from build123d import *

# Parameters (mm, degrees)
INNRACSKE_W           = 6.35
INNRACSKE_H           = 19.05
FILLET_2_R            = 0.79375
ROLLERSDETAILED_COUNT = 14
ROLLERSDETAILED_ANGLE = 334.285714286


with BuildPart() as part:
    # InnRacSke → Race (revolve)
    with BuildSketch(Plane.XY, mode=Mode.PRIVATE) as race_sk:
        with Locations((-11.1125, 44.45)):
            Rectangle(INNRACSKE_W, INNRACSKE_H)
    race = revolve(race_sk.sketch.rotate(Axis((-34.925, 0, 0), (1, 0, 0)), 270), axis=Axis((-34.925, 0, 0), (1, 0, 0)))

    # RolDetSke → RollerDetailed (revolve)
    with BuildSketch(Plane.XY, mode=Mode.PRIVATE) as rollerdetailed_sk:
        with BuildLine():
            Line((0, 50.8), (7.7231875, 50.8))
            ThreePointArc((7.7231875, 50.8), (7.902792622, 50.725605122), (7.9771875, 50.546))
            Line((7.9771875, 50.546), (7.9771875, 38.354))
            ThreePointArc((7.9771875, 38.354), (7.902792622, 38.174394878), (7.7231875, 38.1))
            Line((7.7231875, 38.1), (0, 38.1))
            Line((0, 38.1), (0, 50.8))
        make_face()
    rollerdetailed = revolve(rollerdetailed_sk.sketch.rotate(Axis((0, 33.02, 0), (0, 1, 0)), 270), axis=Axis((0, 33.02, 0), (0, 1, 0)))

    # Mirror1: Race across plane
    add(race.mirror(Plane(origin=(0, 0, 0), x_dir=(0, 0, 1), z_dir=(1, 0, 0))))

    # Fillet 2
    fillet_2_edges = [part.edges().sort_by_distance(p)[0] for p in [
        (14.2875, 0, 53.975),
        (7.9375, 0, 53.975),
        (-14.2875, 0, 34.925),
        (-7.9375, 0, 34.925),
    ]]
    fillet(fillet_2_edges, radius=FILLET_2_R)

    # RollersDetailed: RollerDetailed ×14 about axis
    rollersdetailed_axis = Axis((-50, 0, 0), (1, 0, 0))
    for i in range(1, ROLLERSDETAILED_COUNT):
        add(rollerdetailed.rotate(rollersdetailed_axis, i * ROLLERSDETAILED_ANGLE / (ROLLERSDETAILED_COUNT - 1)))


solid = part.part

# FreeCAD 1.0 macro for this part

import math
import FreeCAD as App
import Part
import Sketcher
from FreeCAD import Vector
Q = App.Units.Quantity


def edges_at(feature, points):
    """Names of the edges that pass closest to the given points."""
    edges = feature.Shape.Edges
    near = lambda p: min(range(len(edges)), key=lambda i: edges[i].distToShape(Part.Vertex(*p))[0])
    return sorted({f"Edge{near(p) + 1}" for p in points})

doc = App.newDocument("Part")
body = doc.addObject("PartDesign::Body", "Body")

# Sketch on XY plane
sketch1 = body.newObject("Sketcher::SketchObject", "Sketch")
sketch1.AttachmentSupport = (doc.getObject("XY_Plane"), [""])
sketch1.MapMode = "FlatFace"
sketch1.addGeometry([
    Part.LineSegment(Vector(-14, 54, 0), Vector(-14, 35, 0)),
    Part.LineSegment(Vector(-14, 35, 0), Vector(-8, 35, 0)),
    Part.LineSegment(Vector(-8, 35, 0), Vector(-8, 54, 0)),
    Part.LineSegment(Vector(-8, 54, 0), Vector(-14, 54, 0)),
], False)
sketch1.addConstraint([
    Sketcher.Constraint("Coincident", 0, 2, 1, 1),
    Sketcher.Constraint("Coincident", 1, 2, 2, 1),
    Sketcher.Constraint("Coincident", 2, 2, 3, 1),
    Sketcher.Constraint("Coincident", 3, 2, 0, 1),
    Sketcher.Constraint("Vertical", 0),
    Sketcher.Constraint("Horizontal", 1),
    Sketcher.Constraint("Vertical", 2),
    Sketcher.Constraint("Horizontal", 3),
    Sketcher.Constraint("DistanceX", 1, 1, 1, 2, Q("0.25 in")),
    Sketcher.Constraint("DistanceY", 0, 2, 0, 1, Q("0.75 in")),
    Sketcher.Constraint("DistanceX", 0, 2, -1, 1, Q("0.5625 in")),
    Sketcher.Constraint("DistanceY", -1, 1, 0, 2, Q("1.375 in")),
])
revolution = body.newObject("PartDesign::Revolution", "Revolution")
revolution.Profile = sketch1
revolution.ReferenceAxis = (sketch1, ["H_Axis"])
revolution.Angle = 360

# Sketch on XY plane
sketch2 = body.newObject("Sketcher::SketchObject", "Sketch001")
sketch2.AttachmentSupport = (doc.getObject("XY_Plane"), [""])
sketch2.MapMode = "FlatFace"
sketch2.addGeometry([
    Part.LineSegment(Vector(7.72, 50.8, 0), Vector(0, 50.8, 0)),  # 0
    Part.LineSegment(Vector(0, 50.8, 0), Vector(0, 38.1, 0)),  # 1
    Part.LineSegment(Vector(0, 38.1, 0), Vector(7.72, 38.1, 0)),  # 2
    Part.ArcOfCircle(Part.Circle(Vector(7.72, 38.35, 0), Vector(0, 0, 1), 0.25), math.radians(-90), math.radians(0)),  # 3
    Part.LineSegment(Vector(7.98, 38.35, 0), Vector(7.98, 50.55, 0)),  # 4
    Part.ArcOfCircle(Part.Circle(Vector(7.72, 50.55, 0), Vector(0, 0, 1), 0.25), math.radians(0), math.radians(90)),  # 5
], False)
sketch2.addConstraint([
    Sketcher.Constraint("Coincident", 0, 2, 1, 1),
    Sketcher.Constraint("Coincident", 1, 2, 2, 1),
    Sketcher.Constraint("Tangent", 2, 2, 3, 1),
    Sketcher.Constraint("Tangent", 3, 2, 4, 1),
    Sketcher.Constraint("Tangent", 4, 2, 5, 1),
    Sketcher.Constraint("Tangent", 5, 2, 0, 1),
    Sketcher.Constraint("Horizontal", 0),
    Sketcher.Constraint("Vertical", 1),
    Sketcher.Constraint("Horizontal", 2),
    Sketcher.Constraint("Vertical", 4),
    Sketcher.Constraint("Equal", 3, 5),
    Sketcher.Constraint("PointOnObject", 0, 2, -2),
    Sketcher.Constraint("Radius", 3, Q("0.01 in")),
    Sketcher.Constraint("DistanceY", 1, 2, 1, 1, Q("0.5 in")),
    Sketcher.Constraint("DistanceY", -1, 1, 0, 2, Q("2 in")),
    Sketcher.Constraint("DistanceX", 0, 2, 0, 1, Q("7.723187 mm")),
])
revolution2 = body.newObject("PartDesign::Revolution", "Revolution001")
revolution2.Profile = sketch2
revolution2.ReferenceAxis = (sketch2, ["V_Axis"])
revolution2.Angle = 360
doc.recompute()

mirrored = body.newObject("PartDesign::Mirrored", "Mirrored")
mirrored.Originals = [revolution]
mirrored.MirrorPlane = (doc.getObject("YZ_Plane"), [""])
body.Tip = mirrored
doc.recompute()

fillet = body.newObject("PartDesign::Fillet", "Fillet")
fillet.Base = (mirrored, edges_at(mirrored, [
    (14.287, 0, 53.975),
    (7.938, 0, 53.975),
    (-14.287, 0, 34.925),
    (-7.938, 0, 34.925),
]))
fillet.Radius = Q("0.03125 in")
doc.recompute()

polarpattern = body.newObject("PartDesign::PolarPattern", "PolarPattern")
polarpattern.Originals = [revolution2]
polarpattern.Axis = (doc.getObject("X_Axis"), [""])
polarpattern.Angle = 360
polarpattern.Occurrences = 14
body.Tip = polarpattern

doc.recompute()
